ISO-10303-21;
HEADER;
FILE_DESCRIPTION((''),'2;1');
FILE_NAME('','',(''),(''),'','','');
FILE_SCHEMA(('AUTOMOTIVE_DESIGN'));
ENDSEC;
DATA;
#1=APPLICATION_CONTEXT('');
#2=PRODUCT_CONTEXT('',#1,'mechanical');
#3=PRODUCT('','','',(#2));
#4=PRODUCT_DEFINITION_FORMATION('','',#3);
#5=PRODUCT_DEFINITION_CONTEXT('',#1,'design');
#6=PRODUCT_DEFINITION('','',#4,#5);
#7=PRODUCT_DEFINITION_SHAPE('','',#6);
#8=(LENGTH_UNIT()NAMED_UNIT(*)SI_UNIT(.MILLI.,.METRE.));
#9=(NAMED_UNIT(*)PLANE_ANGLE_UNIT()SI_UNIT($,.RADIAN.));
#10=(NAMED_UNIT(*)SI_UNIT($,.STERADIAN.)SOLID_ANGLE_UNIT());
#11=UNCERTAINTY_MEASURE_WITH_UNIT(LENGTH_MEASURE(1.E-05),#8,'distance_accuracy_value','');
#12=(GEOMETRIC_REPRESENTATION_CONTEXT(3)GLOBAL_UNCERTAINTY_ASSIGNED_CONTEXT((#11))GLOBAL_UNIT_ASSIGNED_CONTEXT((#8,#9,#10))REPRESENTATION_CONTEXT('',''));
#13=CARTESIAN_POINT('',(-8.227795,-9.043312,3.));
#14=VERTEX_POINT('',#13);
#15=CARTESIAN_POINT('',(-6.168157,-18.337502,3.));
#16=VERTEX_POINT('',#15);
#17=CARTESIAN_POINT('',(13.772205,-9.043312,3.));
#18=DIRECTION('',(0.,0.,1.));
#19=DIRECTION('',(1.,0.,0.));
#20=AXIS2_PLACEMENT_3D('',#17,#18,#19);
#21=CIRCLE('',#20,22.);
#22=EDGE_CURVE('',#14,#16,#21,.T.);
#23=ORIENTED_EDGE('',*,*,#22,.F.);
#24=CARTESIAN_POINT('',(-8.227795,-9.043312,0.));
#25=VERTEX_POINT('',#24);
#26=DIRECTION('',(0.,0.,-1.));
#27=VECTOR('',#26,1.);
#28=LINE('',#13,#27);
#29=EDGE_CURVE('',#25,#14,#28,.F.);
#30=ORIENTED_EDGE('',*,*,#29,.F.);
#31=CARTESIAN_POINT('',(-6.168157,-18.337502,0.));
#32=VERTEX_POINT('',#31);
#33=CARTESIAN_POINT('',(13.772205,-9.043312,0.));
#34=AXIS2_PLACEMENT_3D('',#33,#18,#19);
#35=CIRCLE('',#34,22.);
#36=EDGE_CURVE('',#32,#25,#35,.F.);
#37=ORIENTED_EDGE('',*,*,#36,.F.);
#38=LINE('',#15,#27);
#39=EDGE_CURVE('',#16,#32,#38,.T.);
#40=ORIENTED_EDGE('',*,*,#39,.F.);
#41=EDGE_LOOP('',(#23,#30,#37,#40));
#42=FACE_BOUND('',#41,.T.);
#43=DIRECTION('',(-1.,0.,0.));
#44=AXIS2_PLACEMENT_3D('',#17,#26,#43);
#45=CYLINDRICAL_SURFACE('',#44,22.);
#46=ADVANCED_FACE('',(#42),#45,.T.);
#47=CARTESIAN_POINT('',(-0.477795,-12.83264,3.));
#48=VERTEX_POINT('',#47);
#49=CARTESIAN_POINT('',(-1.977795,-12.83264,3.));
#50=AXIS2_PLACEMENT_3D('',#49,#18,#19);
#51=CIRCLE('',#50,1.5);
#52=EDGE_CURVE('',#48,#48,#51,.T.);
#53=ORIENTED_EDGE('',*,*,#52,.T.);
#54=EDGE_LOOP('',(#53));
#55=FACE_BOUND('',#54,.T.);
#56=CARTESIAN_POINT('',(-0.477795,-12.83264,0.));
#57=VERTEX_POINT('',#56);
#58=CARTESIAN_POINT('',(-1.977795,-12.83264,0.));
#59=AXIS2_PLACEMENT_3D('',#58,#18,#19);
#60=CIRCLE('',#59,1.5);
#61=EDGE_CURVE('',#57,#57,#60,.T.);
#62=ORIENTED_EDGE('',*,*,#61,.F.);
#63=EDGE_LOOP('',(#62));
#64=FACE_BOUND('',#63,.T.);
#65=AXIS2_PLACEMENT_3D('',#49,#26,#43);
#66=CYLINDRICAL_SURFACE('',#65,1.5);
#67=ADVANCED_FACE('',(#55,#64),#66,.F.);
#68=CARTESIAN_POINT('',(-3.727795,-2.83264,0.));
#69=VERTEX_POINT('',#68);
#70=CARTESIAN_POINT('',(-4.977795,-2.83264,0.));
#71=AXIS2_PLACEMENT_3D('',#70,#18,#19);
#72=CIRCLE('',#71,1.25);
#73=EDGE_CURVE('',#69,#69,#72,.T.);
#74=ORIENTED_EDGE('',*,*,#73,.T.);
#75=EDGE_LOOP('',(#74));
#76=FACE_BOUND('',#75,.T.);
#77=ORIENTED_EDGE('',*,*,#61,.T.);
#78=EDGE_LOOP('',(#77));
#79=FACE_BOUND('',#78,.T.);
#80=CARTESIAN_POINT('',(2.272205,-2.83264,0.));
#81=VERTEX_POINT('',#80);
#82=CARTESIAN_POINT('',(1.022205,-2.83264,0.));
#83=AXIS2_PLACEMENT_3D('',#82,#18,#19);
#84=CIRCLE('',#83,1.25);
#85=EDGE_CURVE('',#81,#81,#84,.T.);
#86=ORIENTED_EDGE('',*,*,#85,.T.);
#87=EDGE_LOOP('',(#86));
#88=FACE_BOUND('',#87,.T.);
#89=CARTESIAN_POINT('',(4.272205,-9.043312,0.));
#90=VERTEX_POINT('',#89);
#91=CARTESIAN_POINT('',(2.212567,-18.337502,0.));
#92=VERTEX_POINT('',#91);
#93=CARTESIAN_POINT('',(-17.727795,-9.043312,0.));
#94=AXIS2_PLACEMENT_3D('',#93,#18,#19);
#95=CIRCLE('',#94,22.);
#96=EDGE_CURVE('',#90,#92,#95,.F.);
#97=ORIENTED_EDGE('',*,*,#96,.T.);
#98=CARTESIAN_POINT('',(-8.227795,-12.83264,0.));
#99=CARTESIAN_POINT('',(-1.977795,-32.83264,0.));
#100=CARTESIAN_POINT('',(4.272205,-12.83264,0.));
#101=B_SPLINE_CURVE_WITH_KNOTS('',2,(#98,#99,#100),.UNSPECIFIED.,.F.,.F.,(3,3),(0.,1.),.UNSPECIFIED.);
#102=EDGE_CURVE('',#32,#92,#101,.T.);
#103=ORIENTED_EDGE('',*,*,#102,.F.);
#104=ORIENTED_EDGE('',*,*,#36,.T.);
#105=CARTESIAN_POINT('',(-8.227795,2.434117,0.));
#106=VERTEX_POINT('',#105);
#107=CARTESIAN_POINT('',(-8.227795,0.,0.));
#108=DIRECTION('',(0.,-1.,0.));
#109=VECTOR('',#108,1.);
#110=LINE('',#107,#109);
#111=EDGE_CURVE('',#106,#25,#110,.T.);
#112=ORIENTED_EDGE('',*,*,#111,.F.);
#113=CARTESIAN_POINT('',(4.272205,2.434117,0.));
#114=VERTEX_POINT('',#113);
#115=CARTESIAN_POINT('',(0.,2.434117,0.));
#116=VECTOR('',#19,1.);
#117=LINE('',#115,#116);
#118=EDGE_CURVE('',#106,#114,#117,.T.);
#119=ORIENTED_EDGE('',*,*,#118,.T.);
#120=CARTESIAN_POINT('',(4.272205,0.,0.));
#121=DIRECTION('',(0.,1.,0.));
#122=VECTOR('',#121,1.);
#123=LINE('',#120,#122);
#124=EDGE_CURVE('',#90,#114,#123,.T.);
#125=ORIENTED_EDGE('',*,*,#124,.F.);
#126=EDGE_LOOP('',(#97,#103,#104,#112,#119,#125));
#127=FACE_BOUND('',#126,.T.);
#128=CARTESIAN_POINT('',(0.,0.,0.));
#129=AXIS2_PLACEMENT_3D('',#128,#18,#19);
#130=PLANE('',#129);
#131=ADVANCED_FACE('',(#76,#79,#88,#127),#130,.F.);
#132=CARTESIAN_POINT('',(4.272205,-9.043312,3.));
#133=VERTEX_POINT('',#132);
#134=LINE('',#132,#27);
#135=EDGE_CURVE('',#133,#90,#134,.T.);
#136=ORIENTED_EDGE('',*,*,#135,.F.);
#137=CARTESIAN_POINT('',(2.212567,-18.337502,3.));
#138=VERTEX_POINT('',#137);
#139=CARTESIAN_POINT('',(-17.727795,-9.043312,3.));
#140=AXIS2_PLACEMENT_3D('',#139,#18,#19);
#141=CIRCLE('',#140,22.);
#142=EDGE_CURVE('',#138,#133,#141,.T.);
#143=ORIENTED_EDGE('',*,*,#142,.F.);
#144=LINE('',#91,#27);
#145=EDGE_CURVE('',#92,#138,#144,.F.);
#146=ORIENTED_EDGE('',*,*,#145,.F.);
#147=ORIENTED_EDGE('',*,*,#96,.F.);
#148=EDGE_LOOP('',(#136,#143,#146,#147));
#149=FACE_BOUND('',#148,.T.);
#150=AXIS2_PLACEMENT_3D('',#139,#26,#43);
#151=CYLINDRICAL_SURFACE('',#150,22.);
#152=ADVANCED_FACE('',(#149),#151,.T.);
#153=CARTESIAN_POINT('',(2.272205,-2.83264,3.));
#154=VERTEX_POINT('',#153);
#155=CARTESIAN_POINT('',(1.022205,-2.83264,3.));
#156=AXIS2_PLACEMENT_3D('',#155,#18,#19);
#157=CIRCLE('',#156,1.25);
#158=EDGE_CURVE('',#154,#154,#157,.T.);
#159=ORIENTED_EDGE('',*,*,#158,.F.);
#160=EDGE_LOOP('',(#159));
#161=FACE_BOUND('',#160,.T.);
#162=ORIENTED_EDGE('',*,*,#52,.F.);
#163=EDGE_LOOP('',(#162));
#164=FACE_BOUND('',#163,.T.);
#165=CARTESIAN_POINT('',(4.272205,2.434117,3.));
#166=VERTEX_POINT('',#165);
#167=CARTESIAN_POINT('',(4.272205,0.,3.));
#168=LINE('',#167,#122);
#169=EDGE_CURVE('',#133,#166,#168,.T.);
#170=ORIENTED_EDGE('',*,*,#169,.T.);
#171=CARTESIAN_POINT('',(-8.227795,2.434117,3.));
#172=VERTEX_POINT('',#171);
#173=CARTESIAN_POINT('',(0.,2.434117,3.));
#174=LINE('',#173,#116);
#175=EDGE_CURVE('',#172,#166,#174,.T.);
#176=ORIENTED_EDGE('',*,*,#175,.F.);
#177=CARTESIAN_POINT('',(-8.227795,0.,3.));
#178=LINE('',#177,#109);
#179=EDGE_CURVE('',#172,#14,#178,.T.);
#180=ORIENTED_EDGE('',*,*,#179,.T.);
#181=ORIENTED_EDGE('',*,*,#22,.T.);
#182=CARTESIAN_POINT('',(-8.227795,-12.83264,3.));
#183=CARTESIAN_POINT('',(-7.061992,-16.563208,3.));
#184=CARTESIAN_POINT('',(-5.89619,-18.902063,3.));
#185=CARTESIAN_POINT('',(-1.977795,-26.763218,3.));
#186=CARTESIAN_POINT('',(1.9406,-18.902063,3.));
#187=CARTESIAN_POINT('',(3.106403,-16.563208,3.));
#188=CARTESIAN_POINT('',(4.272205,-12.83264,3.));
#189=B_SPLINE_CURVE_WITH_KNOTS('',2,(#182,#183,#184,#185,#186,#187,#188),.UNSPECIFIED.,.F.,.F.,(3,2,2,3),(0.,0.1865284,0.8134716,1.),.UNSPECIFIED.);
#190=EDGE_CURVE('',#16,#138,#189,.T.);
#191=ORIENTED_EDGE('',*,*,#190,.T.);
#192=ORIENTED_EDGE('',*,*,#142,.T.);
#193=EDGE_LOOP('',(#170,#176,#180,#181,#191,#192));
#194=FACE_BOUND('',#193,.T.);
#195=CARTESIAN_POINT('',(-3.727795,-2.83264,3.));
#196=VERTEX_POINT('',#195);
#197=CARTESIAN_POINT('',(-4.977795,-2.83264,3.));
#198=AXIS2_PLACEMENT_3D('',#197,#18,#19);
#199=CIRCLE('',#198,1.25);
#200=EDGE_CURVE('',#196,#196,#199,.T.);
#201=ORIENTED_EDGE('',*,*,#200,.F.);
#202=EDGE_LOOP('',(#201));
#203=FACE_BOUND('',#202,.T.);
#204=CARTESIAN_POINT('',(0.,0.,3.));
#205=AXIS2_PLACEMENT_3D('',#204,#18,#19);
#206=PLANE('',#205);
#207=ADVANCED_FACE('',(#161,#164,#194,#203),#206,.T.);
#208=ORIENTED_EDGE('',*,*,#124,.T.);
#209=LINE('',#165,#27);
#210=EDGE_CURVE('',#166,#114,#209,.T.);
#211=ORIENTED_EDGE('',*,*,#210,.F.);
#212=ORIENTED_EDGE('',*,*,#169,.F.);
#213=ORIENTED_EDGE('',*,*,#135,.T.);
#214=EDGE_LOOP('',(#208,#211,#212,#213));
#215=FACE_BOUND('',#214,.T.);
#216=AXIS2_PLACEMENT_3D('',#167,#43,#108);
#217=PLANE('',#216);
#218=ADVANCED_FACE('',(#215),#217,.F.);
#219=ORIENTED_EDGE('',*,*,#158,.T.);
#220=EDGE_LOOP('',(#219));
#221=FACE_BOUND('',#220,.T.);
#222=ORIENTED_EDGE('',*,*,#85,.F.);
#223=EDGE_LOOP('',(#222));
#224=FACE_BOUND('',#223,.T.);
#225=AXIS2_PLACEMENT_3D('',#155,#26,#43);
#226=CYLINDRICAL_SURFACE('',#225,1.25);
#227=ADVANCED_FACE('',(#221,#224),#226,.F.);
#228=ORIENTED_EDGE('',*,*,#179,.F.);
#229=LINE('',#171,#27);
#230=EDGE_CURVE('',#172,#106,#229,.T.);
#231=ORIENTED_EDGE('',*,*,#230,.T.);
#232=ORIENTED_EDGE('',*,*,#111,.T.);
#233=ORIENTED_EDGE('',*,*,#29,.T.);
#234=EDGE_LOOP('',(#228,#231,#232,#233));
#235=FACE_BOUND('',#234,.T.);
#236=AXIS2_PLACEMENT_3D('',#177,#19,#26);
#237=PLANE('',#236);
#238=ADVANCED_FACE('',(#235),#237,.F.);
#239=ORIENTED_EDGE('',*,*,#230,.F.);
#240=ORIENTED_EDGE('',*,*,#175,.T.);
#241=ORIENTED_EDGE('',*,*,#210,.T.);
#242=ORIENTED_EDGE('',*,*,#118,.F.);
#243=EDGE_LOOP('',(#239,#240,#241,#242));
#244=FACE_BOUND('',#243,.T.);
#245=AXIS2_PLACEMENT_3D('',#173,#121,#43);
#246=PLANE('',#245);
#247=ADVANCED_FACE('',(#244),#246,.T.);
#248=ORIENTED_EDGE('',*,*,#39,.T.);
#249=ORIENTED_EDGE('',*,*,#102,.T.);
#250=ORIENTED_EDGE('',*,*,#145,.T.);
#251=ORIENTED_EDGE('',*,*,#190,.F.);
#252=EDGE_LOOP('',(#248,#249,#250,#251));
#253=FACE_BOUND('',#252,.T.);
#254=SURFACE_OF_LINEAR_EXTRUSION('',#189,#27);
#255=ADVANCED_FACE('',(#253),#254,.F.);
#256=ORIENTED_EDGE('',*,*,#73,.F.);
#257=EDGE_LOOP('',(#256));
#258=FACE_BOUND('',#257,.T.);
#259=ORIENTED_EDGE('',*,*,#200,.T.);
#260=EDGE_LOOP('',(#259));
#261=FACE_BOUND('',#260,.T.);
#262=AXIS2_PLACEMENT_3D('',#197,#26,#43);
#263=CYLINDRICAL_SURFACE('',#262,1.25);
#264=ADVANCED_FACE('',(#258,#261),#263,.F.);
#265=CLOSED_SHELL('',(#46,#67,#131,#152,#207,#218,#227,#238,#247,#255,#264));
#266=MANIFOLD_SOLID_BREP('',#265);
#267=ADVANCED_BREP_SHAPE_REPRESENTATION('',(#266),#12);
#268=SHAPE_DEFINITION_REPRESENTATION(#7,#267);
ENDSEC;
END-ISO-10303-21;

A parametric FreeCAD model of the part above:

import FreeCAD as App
import Part
import Sketcher

V = App.Vector
Q = App.Units.Quantity


def edges_at(feature, points):
    """Names of the edges that pass closest to the given points."""
    edges = feature.Shape.Edges
    near = lambda p: min(range(len(edges)), key=lambda i: edges[i].distToShape(Part.Vertex(*p))[0])
    return sorted({f"Edge{near(p) + 1}" for p in points})

doc = App.newDocument("Part")
params = doc.addObject("Spreadsheet::Sheet", "Params")
for row, (alias, value) in enumerate([
    ("sketch1_diameter", "3 mm"),
    ("sketch1_diameter2", "2.5 mm"),
    ("pad1_length", "3 mm"),
    ("fillet_radius", "22 mm"),
    ("fillet2_radius", "22 mm"),
], start=1):
    params.set(f"A{row}", alias)
    params.set(f"B{row}", "=" + value)
    params.setAlias(f"B{row}", alias)

body = doc.addObject("PartDesign::Body", "Body")

# Sketch on XY plane
sketch1 = body.newObject("Sketcher::SketchObject", "Sketch")
sketch1.AttachmentSupport = (doc.getObject("XY_Plane"), [""])
sketch1.MapMode = "FlatFace"
sketch1.addGeometry([
    Part.LineSegment(V(4.272205, 2.434117, 0), V(-8.227795, 2.434117, 0)),  # 0
    Part.LineSegment(V(-8.227795, 2.434117, 0), V(-8.227795, -12.83264, 0)),  # 1
    Part.BSplineCurve([V(-8.227795, -12.83264, 0), V(-1.977795, -32.83264, 0), V(4.272205, -12.83264, 0)], [3, 3], [0, 1], False, 2, [1, 1, 1], False),  # 2
    Part.LineSegment(V(4.272205, -12.83264, 0), V(4.272205, 2.434117, 0)),  # 3
    Part.Circle(V(-1.977795, -12.83264, 0), V(0, 0, 1), 1.5),  # 4
    Part.Circle(V(1.022205, -2.83264, 0), V(0, 0, 1), 1.25),  # 5
    Part.Circle(V(-4.977795, -2.83264, 0), V(0, 0, 1), 1.25),  # 6
], False)
sketch1.addConstraint([
    Sketcher.Constraint("Block", 2),
    Sketcher.Constraint("Coincident", 0, 2, 1, 1),
    Sketcher.Constraint("Coincident", 1, 2, 2, 1),
    Sketcher.Constraint("Coincident", 2, 2, 3, 1),
    Sketcher.Constraint("Coincident", 3, 2, 0, 1),
    Sketcher.Constraint("Horizontal", 0),
    Sketcher.Constraint("Vertical", 1),
    Sketcher.Constraint("Vertical", 3),
    Sketcher.Constraint("Equal", 5, 6),
    Sketcher.Constraint("Horizontal", 5, 3, 6, 3),
    Sketcher.Constraint("Horizontal", 4, 3, 1, 2),
    Sketcher.Constraint("Diameter", 4, Q("3 mm")),
    Sketcher.Constraint("Diameter", 5, Q("2.5 mm")),
    Sketcher.Constraint("DistanceX", 4, 3, 5, 3, Q("3 mm")),
    Sketcher.Constraint("DistanceY", 4, 3, 5, 3, Q("10 mm")),
    Sketcher.Constraint("DistanceX", 6, 3, 5, 3, Q("6 mm")),
    Sketcher.Constraint("DistanceX", 0, 2, 6, 3, Q("3.25 mm")),
    Sketcher.Constraint("DistanceY", 1, 2, 1, 1, Q("15.266757 mm")),
])
sketch1.setExpression("Constraints[11]", "Params.sketch1_diameter")
sketch1.setExpression("Constraints[12]", "Params.sketch1_diameter2")
pad1 = body.newObject("PartDesign::Pad", "Pad")
pad1.Profile = sketch1
pad1.setExpression("Length", "Params.pad1_length")
doc.recompute()

fillet = body.newObject("PartDesign::Fillet", "Fillet")
fillet.Base = (pad1, edges_at(pad1, [(4.272, -12.833, 1.5)]))
fillet.setExpression("Radius", "Params.fillet_radius")
doc.recompute()

fillet2 = body.newObject("PartDesign::Fillet", "Fillet001")
fillet2.Base = (fillet, edges_at(fillet, [(-8.228, -12.833, 1.5)]))
fillet2.setExpression("Radius", "Params.fillet2_radius")

doc.recompute()
